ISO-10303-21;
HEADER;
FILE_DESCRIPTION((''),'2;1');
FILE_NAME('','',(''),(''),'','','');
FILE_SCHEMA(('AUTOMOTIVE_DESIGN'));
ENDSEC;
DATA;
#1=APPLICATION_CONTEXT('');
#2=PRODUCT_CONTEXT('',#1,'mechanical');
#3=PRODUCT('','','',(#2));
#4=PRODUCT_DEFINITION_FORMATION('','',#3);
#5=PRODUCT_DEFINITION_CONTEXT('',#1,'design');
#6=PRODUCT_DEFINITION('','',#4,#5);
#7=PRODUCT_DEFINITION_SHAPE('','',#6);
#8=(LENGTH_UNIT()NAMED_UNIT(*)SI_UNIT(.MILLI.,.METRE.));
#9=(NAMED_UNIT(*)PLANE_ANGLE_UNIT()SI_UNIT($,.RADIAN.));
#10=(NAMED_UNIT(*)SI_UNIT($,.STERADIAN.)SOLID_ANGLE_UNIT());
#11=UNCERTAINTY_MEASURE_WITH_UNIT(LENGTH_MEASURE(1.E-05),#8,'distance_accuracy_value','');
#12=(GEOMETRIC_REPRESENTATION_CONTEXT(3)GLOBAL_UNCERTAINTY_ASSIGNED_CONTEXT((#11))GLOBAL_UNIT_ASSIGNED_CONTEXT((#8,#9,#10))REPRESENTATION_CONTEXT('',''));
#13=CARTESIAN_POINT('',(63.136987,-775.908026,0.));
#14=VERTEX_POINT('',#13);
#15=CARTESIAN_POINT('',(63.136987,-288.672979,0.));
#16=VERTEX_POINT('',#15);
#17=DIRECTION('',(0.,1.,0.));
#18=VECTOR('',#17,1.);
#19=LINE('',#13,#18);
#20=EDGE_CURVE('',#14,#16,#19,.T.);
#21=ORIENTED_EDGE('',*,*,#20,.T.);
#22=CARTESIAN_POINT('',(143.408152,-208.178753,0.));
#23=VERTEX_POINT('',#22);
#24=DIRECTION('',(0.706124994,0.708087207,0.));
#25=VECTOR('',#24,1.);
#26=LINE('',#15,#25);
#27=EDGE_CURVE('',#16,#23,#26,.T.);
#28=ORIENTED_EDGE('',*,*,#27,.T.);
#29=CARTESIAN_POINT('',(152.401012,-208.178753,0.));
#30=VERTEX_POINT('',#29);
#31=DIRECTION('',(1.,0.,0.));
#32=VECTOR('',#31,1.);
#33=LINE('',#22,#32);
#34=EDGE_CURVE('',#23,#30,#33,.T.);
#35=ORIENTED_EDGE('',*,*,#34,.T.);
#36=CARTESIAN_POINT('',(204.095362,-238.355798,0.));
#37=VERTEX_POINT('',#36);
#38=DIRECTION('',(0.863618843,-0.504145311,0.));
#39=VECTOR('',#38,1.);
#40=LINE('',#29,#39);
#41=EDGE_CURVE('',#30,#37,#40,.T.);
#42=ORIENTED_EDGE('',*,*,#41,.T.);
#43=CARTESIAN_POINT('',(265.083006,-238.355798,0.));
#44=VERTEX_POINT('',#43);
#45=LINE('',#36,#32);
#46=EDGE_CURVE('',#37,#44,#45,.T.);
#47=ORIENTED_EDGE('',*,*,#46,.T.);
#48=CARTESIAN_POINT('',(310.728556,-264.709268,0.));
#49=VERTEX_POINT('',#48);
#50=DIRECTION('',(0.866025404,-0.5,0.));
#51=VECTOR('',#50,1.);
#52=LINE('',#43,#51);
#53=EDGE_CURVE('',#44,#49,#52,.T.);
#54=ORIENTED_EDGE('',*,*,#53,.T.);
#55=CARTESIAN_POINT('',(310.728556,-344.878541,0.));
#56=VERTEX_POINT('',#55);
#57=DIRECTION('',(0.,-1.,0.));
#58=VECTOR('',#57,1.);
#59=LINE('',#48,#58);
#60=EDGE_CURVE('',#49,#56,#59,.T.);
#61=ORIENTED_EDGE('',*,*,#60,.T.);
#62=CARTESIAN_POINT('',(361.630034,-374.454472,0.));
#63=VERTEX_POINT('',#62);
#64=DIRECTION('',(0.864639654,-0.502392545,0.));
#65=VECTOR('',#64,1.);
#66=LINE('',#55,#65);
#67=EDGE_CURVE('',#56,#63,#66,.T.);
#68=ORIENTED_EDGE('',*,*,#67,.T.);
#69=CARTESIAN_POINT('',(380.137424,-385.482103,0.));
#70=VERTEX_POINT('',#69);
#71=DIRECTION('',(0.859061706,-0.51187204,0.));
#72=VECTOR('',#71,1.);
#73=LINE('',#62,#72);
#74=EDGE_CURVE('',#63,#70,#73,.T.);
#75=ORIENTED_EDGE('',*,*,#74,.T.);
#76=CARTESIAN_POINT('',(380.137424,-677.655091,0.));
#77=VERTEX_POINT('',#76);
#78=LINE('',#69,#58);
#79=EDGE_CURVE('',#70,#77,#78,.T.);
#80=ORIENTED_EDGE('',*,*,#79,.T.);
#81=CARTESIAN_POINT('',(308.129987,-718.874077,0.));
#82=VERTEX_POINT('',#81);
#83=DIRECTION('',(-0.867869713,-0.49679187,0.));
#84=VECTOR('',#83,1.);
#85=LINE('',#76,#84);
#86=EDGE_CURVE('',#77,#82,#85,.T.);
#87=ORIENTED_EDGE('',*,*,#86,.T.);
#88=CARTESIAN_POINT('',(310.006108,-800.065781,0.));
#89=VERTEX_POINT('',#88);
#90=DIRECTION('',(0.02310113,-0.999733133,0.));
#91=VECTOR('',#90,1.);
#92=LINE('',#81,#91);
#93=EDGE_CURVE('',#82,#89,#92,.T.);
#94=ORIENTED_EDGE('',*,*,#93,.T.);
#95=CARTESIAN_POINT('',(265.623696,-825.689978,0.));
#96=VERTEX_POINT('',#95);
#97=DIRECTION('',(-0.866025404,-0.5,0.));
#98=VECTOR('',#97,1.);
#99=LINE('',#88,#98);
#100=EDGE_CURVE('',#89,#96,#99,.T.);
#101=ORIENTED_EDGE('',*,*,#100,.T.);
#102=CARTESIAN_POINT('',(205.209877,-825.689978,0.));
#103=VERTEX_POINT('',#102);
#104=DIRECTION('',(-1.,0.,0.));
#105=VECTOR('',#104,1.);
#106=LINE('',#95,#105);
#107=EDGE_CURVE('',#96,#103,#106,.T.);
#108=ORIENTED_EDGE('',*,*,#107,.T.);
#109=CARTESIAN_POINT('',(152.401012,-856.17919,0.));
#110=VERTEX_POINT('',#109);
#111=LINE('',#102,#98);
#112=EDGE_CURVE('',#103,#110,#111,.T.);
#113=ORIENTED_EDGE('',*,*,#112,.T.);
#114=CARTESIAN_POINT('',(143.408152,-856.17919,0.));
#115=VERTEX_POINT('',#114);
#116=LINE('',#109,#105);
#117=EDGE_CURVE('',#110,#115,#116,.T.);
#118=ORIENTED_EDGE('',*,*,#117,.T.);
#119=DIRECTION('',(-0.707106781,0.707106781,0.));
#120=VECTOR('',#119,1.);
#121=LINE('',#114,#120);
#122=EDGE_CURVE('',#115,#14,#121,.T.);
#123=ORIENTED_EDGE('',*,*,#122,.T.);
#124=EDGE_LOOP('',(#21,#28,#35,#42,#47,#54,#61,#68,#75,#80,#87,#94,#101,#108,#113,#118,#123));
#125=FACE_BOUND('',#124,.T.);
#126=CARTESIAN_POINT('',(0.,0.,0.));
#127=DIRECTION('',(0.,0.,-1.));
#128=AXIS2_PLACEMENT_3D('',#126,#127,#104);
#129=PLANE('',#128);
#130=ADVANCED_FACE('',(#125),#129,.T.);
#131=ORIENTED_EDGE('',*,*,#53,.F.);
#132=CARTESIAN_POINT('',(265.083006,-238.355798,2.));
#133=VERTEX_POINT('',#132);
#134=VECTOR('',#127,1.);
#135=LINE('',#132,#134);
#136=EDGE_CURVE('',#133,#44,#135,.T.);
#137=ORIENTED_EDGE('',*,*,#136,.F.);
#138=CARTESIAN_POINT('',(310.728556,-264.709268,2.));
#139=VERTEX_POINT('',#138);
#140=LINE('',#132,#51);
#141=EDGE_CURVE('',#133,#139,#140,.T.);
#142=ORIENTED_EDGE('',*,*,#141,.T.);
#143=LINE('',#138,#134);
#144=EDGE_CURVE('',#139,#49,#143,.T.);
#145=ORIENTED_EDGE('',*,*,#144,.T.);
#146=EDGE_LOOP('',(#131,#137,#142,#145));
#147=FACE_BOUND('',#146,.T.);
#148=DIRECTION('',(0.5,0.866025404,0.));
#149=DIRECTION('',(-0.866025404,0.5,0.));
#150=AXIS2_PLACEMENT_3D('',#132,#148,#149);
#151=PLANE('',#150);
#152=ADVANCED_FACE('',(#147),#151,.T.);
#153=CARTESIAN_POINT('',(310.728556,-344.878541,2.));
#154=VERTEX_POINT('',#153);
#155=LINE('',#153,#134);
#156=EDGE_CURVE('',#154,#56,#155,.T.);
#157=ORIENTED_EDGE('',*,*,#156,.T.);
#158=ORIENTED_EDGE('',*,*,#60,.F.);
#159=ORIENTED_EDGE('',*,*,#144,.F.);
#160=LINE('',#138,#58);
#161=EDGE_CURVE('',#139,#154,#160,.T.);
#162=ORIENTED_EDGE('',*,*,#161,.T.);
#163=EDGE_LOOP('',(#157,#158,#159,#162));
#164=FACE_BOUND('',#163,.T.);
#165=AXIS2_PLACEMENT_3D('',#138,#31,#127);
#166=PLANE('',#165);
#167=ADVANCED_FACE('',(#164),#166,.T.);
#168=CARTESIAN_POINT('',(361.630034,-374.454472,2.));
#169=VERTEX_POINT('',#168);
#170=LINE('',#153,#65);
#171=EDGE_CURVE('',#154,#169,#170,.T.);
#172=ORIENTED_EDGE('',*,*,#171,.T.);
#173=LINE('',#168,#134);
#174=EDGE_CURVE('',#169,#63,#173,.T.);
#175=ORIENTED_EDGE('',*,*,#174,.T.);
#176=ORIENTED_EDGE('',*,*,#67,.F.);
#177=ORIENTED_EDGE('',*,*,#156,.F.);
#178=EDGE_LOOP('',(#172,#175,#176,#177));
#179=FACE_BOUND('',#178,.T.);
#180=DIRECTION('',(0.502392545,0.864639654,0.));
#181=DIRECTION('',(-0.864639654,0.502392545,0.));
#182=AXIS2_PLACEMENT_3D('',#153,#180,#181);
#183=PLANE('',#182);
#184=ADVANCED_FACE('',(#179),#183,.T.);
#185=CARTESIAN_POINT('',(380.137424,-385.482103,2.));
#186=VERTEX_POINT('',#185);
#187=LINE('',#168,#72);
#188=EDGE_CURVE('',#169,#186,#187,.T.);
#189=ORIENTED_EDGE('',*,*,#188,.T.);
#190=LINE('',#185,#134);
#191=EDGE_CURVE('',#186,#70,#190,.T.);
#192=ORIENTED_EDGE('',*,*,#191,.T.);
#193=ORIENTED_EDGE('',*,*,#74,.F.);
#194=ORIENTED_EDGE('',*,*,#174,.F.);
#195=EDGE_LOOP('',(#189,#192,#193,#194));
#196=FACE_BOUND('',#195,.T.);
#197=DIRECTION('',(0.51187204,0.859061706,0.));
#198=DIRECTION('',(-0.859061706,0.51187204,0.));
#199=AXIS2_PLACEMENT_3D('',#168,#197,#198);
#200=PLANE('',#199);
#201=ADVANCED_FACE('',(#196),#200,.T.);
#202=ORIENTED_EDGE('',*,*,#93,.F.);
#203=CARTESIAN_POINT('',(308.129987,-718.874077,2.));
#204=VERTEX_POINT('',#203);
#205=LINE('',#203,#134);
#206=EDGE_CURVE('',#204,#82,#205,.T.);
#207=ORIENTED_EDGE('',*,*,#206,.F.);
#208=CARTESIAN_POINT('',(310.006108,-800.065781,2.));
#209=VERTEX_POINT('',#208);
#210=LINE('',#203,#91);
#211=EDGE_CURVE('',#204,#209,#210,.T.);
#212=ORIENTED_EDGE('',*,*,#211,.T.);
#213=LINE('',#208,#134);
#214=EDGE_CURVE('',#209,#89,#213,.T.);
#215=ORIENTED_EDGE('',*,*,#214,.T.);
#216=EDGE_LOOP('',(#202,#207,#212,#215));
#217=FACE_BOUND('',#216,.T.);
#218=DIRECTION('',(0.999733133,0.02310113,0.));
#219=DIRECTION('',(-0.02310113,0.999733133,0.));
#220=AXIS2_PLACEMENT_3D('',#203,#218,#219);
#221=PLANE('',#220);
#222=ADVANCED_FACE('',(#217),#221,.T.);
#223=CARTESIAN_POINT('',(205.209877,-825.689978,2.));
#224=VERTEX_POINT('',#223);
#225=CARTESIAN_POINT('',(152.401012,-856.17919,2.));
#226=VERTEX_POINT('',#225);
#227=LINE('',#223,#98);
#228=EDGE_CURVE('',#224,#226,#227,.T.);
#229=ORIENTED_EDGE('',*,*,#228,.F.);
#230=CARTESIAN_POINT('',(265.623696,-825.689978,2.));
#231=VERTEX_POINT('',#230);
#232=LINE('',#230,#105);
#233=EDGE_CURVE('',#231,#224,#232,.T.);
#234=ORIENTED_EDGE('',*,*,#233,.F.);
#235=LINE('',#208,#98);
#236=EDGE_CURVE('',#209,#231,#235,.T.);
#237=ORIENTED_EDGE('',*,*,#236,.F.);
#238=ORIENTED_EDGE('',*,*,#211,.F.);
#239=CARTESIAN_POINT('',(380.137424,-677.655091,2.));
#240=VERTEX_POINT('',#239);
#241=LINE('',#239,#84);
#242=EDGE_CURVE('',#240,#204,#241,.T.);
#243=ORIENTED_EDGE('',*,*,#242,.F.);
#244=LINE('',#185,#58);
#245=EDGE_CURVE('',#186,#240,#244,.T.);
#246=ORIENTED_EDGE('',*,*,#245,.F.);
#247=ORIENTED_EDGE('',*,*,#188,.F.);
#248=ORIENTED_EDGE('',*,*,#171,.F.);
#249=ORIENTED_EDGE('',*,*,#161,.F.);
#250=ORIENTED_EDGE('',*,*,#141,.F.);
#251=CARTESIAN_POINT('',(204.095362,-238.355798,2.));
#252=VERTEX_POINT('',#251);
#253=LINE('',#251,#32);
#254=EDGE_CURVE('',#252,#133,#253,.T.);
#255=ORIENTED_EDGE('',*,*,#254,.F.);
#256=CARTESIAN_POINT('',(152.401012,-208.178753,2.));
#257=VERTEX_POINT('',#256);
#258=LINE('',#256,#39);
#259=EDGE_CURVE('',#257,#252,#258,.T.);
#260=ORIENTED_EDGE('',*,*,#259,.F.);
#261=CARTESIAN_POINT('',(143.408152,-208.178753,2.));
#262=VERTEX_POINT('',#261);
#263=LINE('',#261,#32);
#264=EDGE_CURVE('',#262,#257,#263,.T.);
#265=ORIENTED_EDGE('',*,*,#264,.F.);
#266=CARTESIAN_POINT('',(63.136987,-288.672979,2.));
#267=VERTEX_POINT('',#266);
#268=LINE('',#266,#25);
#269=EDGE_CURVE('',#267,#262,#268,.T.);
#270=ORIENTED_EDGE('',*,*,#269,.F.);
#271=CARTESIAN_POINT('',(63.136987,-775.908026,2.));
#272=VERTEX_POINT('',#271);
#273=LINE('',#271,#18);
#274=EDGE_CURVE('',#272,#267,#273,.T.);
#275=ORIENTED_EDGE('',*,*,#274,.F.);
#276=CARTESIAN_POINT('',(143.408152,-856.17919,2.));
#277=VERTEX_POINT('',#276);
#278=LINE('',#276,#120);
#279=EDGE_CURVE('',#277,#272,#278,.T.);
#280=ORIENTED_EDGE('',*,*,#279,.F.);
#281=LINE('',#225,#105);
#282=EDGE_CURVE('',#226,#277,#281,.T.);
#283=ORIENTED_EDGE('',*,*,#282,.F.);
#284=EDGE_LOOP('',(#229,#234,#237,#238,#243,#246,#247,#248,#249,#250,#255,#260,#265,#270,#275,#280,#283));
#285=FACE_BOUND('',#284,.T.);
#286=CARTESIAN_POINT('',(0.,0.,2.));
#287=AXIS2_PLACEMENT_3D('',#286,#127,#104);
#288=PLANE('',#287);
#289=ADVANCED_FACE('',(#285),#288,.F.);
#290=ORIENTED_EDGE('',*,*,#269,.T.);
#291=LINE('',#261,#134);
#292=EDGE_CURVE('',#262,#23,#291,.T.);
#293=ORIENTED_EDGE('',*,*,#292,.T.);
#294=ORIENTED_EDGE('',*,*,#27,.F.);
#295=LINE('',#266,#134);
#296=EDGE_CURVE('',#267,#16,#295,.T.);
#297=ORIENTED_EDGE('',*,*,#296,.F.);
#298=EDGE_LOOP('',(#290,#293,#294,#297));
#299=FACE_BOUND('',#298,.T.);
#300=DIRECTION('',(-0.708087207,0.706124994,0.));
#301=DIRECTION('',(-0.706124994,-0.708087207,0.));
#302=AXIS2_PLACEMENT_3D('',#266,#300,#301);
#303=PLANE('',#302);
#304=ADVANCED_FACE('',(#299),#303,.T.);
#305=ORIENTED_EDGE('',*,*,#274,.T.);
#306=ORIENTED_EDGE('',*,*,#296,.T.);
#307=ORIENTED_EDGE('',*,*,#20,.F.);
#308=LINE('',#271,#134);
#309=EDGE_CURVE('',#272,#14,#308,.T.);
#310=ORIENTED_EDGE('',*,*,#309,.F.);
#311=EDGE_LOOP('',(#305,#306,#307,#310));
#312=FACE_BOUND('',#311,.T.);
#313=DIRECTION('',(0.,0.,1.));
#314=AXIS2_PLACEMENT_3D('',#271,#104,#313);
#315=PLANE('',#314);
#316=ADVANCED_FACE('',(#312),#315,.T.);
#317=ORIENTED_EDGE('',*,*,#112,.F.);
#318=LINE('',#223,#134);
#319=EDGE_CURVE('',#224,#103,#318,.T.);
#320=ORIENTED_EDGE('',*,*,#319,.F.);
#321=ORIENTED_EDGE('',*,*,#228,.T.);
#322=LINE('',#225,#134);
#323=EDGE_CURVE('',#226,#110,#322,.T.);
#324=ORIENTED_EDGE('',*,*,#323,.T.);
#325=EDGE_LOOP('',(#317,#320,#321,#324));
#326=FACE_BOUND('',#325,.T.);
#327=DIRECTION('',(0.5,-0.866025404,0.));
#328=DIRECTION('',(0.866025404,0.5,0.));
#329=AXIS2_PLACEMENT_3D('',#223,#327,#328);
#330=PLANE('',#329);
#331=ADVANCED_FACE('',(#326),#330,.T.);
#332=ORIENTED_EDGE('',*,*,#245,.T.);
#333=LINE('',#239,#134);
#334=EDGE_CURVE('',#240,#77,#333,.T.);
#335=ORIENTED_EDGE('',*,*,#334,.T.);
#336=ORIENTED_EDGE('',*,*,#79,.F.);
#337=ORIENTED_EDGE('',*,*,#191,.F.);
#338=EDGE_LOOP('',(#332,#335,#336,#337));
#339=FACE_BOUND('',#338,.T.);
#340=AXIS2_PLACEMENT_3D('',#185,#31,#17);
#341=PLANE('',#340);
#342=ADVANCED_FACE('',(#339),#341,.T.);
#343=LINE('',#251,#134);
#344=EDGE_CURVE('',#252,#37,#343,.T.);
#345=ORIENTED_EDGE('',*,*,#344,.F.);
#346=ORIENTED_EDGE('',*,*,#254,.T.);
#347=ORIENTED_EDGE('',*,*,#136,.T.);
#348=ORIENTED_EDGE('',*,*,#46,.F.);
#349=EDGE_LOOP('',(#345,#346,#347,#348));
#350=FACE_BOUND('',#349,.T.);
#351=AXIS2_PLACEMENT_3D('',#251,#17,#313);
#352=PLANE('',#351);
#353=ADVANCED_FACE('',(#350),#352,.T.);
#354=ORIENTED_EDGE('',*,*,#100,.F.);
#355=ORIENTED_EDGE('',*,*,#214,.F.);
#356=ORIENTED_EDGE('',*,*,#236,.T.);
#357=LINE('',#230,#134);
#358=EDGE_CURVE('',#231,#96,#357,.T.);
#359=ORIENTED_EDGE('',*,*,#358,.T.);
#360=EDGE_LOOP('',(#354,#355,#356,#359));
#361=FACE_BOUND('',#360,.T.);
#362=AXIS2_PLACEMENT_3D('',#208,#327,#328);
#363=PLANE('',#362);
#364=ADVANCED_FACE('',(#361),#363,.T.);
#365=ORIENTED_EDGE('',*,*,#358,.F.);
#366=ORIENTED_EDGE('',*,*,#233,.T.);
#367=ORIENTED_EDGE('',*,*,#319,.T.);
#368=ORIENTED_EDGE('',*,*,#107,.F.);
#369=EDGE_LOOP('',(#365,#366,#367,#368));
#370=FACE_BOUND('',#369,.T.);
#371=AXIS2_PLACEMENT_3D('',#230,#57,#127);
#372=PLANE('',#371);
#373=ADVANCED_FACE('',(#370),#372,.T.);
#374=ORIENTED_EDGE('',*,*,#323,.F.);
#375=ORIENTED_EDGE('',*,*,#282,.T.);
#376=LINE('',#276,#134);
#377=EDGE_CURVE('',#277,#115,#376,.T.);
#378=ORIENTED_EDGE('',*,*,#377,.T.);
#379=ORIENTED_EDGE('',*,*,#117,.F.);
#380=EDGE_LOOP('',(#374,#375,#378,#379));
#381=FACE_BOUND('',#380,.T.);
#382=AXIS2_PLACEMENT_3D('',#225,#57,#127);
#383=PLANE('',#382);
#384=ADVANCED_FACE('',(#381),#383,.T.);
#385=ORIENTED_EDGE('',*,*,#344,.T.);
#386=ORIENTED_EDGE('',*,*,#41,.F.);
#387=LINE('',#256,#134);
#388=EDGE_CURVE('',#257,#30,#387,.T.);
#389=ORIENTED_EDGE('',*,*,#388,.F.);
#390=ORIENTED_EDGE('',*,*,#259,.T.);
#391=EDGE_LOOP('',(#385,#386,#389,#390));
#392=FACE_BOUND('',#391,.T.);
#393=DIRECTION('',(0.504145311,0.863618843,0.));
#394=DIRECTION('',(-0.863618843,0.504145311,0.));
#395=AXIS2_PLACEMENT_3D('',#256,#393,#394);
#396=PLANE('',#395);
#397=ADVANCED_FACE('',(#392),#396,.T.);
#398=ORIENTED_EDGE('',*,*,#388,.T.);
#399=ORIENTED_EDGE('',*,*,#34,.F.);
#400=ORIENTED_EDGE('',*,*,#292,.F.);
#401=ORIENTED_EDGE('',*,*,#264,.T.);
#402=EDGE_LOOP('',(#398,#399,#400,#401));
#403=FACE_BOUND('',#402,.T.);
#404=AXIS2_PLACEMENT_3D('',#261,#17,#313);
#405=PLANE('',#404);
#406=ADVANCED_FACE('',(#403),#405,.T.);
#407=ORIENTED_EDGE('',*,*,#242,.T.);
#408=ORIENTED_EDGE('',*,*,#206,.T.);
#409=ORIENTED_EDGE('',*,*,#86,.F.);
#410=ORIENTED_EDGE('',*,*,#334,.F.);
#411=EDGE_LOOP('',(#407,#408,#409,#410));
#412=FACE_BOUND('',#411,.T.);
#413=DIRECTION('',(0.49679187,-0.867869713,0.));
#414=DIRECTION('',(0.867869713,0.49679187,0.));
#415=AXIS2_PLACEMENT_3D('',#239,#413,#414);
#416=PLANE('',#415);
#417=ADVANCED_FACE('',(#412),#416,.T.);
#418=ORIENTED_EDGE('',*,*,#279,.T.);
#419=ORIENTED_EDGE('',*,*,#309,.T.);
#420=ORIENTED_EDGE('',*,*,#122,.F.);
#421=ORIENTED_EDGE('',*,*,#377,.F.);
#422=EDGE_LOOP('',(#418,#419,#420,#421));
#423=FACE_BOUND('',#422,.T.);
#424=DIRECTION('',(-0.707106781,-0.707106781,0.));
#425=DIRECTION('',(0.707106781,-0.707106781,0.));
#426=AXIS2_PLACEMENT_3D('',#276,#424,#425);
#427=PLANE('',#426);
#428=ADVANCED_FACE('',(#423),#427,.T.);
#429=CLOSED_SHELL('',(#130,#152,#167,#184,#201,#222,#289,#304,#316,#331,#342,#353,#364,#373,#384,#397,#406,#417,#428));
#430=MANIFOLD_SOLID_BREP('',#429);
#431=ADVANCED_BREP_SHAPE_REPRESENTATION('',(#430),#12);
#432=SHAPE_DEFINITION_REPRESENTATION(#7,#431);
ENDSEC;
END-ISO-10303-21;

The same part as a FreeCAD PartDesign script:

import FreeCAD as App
import Part
import Sketcher
from FreeCAD import Vector
Q = App.Units.Quantity

doc = App.newDocument("Part")
params = doc.addObject("Spreadsheet::Sheet", "Params")
for row, (alias, value) in enumerate([
    ("pad1_length", "2 mm"),
], start=1):
    params.set(f"A{row}", alias)
    params.set(f"B{row}", "=" + value)
    params.setAlias(f"B{row}", alias)

body = doc.addObject("PartDesign::Body", "Body")

sketch1 = body.newObject("Sketcher::SketchObject", "Sketch")
sketch1.AttachmentSupport = (doc.getObject("XY_Plane"), [""])
sketch1.MapMode = "FlatFace"
sketch1.addGeometry([
    Part.LineSegment(Vector(380.137424, -385.482103, 0), Vector(361.630034, -374.454472, 0)),
    Part.LineSegment(Vector(361.630034, -374.454472, 0), Vector(310.728556, -344.878541, 0)),
    Part.LineSegment(Vector(310.728556, -344.878541, 0), Vector(310.728556, -264.709268, 0)),
    Part.LineSegment(Vector(310.728556, -264.709268, 0), Vector(265.083006, -238.355798, 0)),
    Part.LineSegment(Vector(265.083006, -238.355798, 0), Vector(204.095362, -238.355798, 0)),
    Part.LineSegment(Vector(204.095362, -238.355798, 0), Vector(152.401012, -208.178753, 0)),
    Part.LineSegment(Vector(152.401012, -208.178753, 0), Vector(143.408152, -208.178753, 0)),
    Part.LineSegment(Vector(143.408152, -208.178753, 0), Vector(63.136987, -288.672979, 0)),
    Part.LineSegment(Vector(63.136987, -288.672979, 0), Vector(63.136987, -775.908026, 0)),
    Part.LineSegment(Vector(63.136987, -775.908026, 0), Vector(143.408152, -856.17919, 0)),
    Part.LineSegment(Vector(143.408152, -856.17919, 0), Vector(152.401012, -856.17919, 0)),
    Part.LineSegment(Vector(152.401012, -856.17919, 0), Vector(205.209877, -825.689978, 0)),
    Part.LineSegment(Vector(205.209877, -825.689978, 0), Vector(265.623696, -825.689978, 0)),
    Part.LineSegment(Vector(265.623696, -825.689978, 0), Vector(310.006108, -800.065781, 0)),
    Part.LineSegment(Vector(310.006108, -800.065781, 0), Vector(308.129987, -718.874077, 0)),
    Part.LineSegment(Vector(308.129987, -718.874077, 0), Vector(380.137424, -677.655091, 0)),
    Part.LineSegment(Vector(380.137424, -677.655091, 0), Vector(380.137424, -385.482103, 0)),
], False)
sketch1.addConstraint([
    Sketcher.Constraint("Coincident", 0, 2, 1, 1),
    Sketcher.Constraint("Coincident", 1, 2, 2, 1),
    Sketcher.Constraint("Coincident", 2, 2, 3, 1),
    Sketcher.Constraint("Coincident", 3, 2, 4, 1),
    Sketcher.Constraint("Coincident", 4, 2, 5, 1),
    Sketcher.Constraint("Coincident", 5, 2, 6, 1),
    Sketcher.Constraint("Coincident", 6, 2, 7, 1),
    Sketcher.Constraint("Coincident", 7, 2, 8, 1),
    Sketcher.Constraint("Coincident", 8, 2, 9, 1),
    Sketcher.Constraint("Coincident", 9, 2, 10, 1),
    Sketcher.Constraint("Coincident", 10, 2, 11, 1),
    Sketcher.Constraint("Coincident", 11, 2, 12, 1),
    Sketcher.Constraint("Coincident", 12, 2, 13, 1),
    Sketcher.Constraint("Coincident", 13, 2, 14, 1),
    Sketcher.Constraint("Coincident", 14, 2, 15, 1),
    Sketcher.Constraint("Coincident", 15, 2, 16, 1),
    Sketcher.Constraint("Coincident", 16, 2, 0, 1),
    Sketcher.Constraint("Vertical", 2),
    Sketcher.Constraint("Horizontal", 4),
    Sketcher.Constraint("Horizontal", 6),
    Sketcher.Constraint("Vertical", 8),
    Sketcher.Constraint("Horizontal", 10),
    Sketcher.Constraint("Horizontal", 12),
    Sketcher.Constraint("Vertical", 16),
    Sketcher.Constraint("Parallel", 11, 13),
    Sketcher.Constraint("Vertical", 6, 2, 9, 2),
    Sketcher.Constraint("Vertical", 5, 2, 10, 2),
    Sketcher.Constraint("Angle", 3, Q("150 deg")),
    Sketcher.Constraint("Angle", 9, Q("-45 deg")),
    Sketcher.Constraint("Angle", 11, Q("30 deg")),
    Sketcher.Constraint("DistanceX", 6, 2, 6, 1, 8.992861),
    Sketcher.Constraint("DistanceX", 12, 1, 12, 2, 60.41382),
    Sketcher.Constraint("DistanceY", 16, 1, 16, 2, 292.172988),
    Sketcher.Constraint("DistanceY", 12, 2, 14, 2, 106.815902),
    Sketcher.Constraint("DistanceY", 10, 2, 15, 2, 178.524099),
    Sketcher.Constraint("Distance", 3, 52.706941),
    Sketcher.Constraint("Distance", 5, 59.85783),
    Sketcher.Constraint("Distance", 9, 113.52057),
    Sketcher.Constraint("Distance", 15, 82.970331),
    Sketcher.Constraint("DistanceX", 4, 2, 4, 1, 60.987644),
    Sketcher.Constraint("DistanceY", 2, 1, 2, 2, 80.169272),
    Sketcher.Constraint("DistanceY", 8, 2, 8, 1, 487.235046),
    Sketcher.Constraint("DistanceY", 0, 2, -1, 1, 374.454472),
    Sketcher.Constraint("DistanceY", 1, 2, -1, 1, 344.878541),
    Sketcher.Constraint("DistanceX", -1, 1, 6, 2, 143.408152),
    Sketcher.Constraint("DistanceY", 7, 2, -1, 1, 288.672979),
    Sketcher.Constraint("DistanceY", 11, 2, -1, 1, 825.689978),
    Sketcher.Constraint("DistanceY", 13, 2, -1, 1, 800.065781),
    Sketcher.Constraint("DistanceX", 4, 2, 0, 2, 157.534672),
    Sketcher.Constraint("DistanceX", 5, 2, 4, 2, 51.69435),
    Sketcher.Constraint("DistanceX", 14, 2, 13, 2, 1.876121),
])
pad1 = body.newObject("PartDesign::Pad", "Pad")
pad1.Profile = sketch1
pad1.setExpression("Length", "Params.pad1_length")

doc.recompute()
